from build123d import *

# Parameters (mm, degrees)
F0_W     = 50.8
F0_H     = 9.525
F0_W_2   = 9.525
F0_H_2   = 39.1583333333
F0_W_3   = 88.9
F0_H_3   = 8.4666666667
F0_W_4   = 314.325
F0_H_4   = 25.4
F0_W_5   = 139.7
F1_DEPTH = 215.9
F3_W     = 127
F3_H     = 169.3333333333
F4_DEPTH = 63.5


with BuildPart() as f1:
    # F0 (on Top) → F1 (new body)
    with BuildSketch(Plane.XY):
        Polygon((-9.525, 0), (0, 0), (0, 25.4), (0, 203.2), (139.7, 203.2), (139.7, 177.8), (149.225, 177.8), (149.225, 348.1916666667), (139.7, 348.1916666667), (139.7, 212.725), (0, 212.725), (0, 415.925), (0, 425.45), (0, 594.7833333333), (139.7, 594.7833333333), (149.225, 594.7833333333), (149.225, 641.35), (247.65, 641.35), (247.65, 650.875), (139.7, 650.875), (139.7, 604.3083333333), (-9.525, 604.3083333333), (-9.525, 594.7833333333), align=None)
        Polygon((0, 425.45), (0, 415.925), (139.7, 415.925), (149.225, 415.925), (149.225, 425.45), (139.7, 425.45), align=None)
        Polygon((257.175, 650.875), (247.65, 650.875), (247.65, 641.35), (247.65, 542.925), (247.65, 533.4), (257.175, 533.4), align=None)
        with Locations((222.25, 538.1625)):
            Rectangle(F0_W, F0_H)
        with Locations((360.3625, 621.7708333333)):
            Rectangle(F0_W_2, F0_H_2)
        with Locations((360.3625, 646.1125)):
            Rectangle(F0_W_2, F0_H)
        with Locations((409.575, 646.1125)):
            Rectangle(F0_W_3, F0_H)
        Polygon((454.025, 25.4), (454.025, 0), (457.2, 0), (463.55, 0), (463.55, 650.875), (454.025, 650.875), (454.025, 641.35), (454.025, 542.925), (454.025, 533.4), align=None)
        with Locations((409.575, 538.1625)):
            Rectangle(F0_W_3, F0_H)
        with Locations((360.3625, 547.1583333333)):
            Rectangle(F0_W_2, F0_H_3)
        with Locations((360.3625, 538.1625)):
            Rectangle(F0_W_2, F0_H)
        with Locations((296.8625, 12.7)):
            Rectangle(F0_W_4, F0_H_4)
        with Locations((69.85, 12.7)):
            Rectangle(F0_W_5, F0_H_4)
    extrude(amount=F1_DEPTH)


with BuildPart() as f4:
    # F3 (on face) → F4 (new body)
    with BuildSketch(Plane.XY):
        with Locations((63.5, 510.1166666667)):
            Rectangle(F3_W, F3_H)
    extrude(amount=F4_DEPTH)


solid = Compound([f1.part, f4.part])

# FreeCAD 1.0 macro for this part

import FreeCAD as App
import Part
import Sketcher
Q = App.Units.Quantity

doc = App.newDocument("Part")
body = doc.addObject("PartDesign::Body", "Body")

# Sketch on XY plane
sketch1 = body.newObject("Sketcher::SketchObject", "Sketch")
sketch1.AttachmentSupport = (doc.getObject("XY_Plane"), [""])
sketch1.MapMode = "FlatFace"
sketch1.addGeometry(Part.LineSegment(App.Vector(-9.525, 0, 0), App.Vector(463.55, 0, 0)), False)
sketch1.addGeometry(Part.LineSegment(App.Vector(463.55, 0, 0), App.Vector(463.55, 650.875, 0)), False)
sketch1.addGeometry(Part.LineSegment(App.Vector(463.55, 650.875, 0), App.Vector(355.6, 650.875, 0)), False)
sketch1.addGeometry(Part.LineSegment(App.Vector(355.6, 650.875, 0), App.Vector(355.6, 602.191667, 0)), False)
sketch1.addGeometry(Part.LineSegment(App.Vector(355.6, 602.191667, 0), App.Vector(365.125, 602.191667, 0)), False)
sketch1.addGeometry(Part.LineSegment(App.Vector(365.125, 602.191667, 0), App.Vector(365.125, 641.35, 0)), False)
sketch1.addGeometry(Part.LineSegment(App.Vector(365.125, 641.35, 0), App.Vector(454.025, 641.35, 0)), False)
sketch1.addGeometry(Part.LineSegment(App.Vector(454.025, 641.35, 0), App.Vector(454.025, 542.925, 0)), False)
sketch1.addGeometry(Part.LineSegment(App.Vector(454.025, 542.925, 0), App.Vector(365.125, 542.925, 0)), False)
sketch1.addGeometry(Part.LineSegment(App.Vector(365.125, 542.925, 0), App.Vector(365.125, 551.391667, 0)), False)
sketch1.addGeometry(Part.LineSegment(App.Vector(365.125, 551.391667, 0), App.Vector(355.6, 551.391667, 0)), False)
sketch1.addGeometry(Part.LineSegment(App.Vector(355.6, 551.391667, 0), App.Vector(355.6, 533.4, 0)), False)
sketch1.addGeometry(Part.LineSegment(App.Vector(355.6, 533.4, 0), App.Vector(454.025, 533.4, 0)), False)
sketch1.addGeometry(Part.LineSegment(App.Vector(454.025, 533.4, 0), App.Vector(454.025, 25.4, 0)), False)
sketch1.addGeometry(Part.LineSegment(App.Vector(454.025, 25.4, 0), App.Vector(0, 25.4, 0)), False)
sketch1.addGeometry(Part.LineSegment(App.Vector(0, 25.4, 0), App.Vector(0, 203.2, 0)), False)
sketch1.addGeometry(Part.LineSegment(App.Vector(0, 203.2, 0), App.Vector(139.7, 203.2, 0)), False)
sketch1.addGeometry(Part.LineSegment(App.Vector(139.7, 203.2, 0), App.Vector(139.7, 177.8, 0)), False)
sketch1.addGeometry(Part.LineSegment(App.Vector(139.7, 177.8, 0), App.Vector(149.225, 177.8, 0)), False)
sketch1.addGeometry(Part.LineSegment(App.Vector(149.225, 177.8, 0), App.Vector(149.225, 348.191667, 0)), False)
sketch1.addGeometry(Part.LineSegment(App.Vector(149.225, 348.191667, 0), App.Vector(139.7, 348.191667, 0)), False)
sketch1.addGeometry(Part.LineSegment(App.Vector(139.7, 348.191667, 0), App.Vector(139.7, 212.725, 0)), False)
sketch1.addGeometry(Part.LineSegment(App.Vector(139.7, 212.725, 0), App.Vector(0, 212.725, 0)), False)
sketch1.addGeometry(Part.LineSegment(App.Vector(0, 212.725, 0), App.Vector(0, 415.925, 0)), False)
sketch1.addGeometry(Part.LineSegment(App.Vector(0, 415.925, 0), App.Vector(149.225, 415.925, 0)), False)
sketch1.addGeometry(Part.LineSegment(App.Vector(149.225, 415.925, 0), App.Vector(149.225, 425.45, 0)), False)
sketch1.addGeometry(Part.LineSegment(App.Vector(149.225, 425.45, 0), App.Vector(0, 425.45, 0)), False)
sketch1.addGeometry(Part.LineSegment(App.Vector(0, 425.45, 0), App.Vector(0, 594.783333, 0)), False)
sketch1.addGeometry(Part.LineSegment(App.Vector(0, 594.783333, 0), App.Vector(149.225, 594.783333, 0)), False)
sketch1.addGeometry(Part.LineSegment(App.Vector(149.225, 594.783333, 0), App.Vector(149.225, 641.35, 0)), False)
sketch1.addGeometry(Part.LineSegment(App.Vector(149.225, 641.35, 0), App.Vector(247.65, 641.35, 0)), False)
sketch1.addGeometry(Part.LineSegment(App.Vector(247.65, 641.35, 0), App.Vector(247.65, 542.925, 0)), False)
sketch1.addGeometry(Part.LineSegment(App.Vector(247.65, 542.925, 0), App.Vector(196.85, 542.925, 0)), False)
sketch1.addGeometry(Part.LineSegment(App.Vector(196.85, 542.925, 0), App.Vector(196.85, 533.4, 0)), False)
sketch1.addGeometry(Part.LineSegment(App.Vector(196.85, 533.4, 0), App.Vector(257.175, 533.4, 0)), False)
sketch1.addGeometry(Part.LineSegment(App.Vector(257.175, 533.4, 0), App.Vector(257.175, 650.875, 0)), False)
sketch1.addGeometry(Part.LineSegment(App.Vector(257.175, 650.875, 0), App.Vector(139.7, 650.875, 0)), False)
sketch1.addGeometry(Part.LineSegment(App.Vector(139.7, 650.875, 0), App.Vector(139.7, 604.308333, 0)), False)
sketch1.addGeometry(Part.LineSegment(App.Vector(139.7, 604.308333, 0), App.Vector(-9.525, 604.308333, 0)), False)
sketch1.addGeometry(Part.LineSegment(App.Vector(-9.525, 604.308333, 0), App.Vector(-9.525, 0, 0)), False)
sketch1.addConstraint(Sketcher.Constraint("Coincident", 0, 2, 1, 1))
sketch1.addConstraint(Sketcher.Constraint("Coincident", 1, 2, 2, 1))
sketch1.addConstraint(Sketcher.Constraint("Coincident", 2, 2, 3, 1))
sketch1.addConstraint(Sketcher.Constraint("Coincident", 3, 2, 4, 1))
sketch1.addConstraint(Sketcher.Constraint("Coincident", 4, 2, 5, 1))
sketch1.addConstraint(Sketcher.Constraint("Coincident", 5, 2, 6, 1))
sketch1.addConstraint(Sketcher.Constraint("Coincident", 6, 2, 7, 1))
sketch1.addConstraint(Sketcher.Constraint("Coincident", 7, 2, 8, 1))
sketch1.addConstraint(Sketcher.Constraint("Coincident", 8, 2, 9, 1))
sketch1.addConstraint(Sketcher.Constraint("Coincident", 9, 2, 10, 1))
sketch1.addConstraint(Sketcher.Constraint("Coincident", 10, 2, 11, 1))
sketch1.addConstraint(Sketcher.Constraint("Coincident", 11, 2, 12, 1))
sketch1.addConstraint(Sketcher.Constraint("Coincident", 12, 2, 13, 1))
sketch1.addConstraint(Sketcher.Constraint("Coincident", 13, 2, 14, 1))
sketch1.addConstraint(Sketcher.Constraint("Coincident", 14, 2, 15, 1))
sketch1.addConstraint(Sketcher.Constraint("Coincident", 15, 2, 16, 1))
sketch1.addConstraint(Sketcher.Constraint("Coincident", 16, 2, 17, 1))
sketch1.addConstraint(Sketcher.Constraint("Coincident", 17, 2, 18, 1))
sketch1.addConstraint(Sketcher.Constraint("Coincident", 18, 2, 19, 1))
sketch1.addConstraint(Sketcher.Constraint("Coincident", 19, 2, 20, 1))
sketch1.addConstraint(Sketcher.Constraint("Coincident", 20, 2, 21, 1))
sketch1.addConstraint(Sketcher.Constraint("Coincident", 21, 2, 22, 1))
sketch1.addConstraint(Sketcher.Constraint("Coincident", 22, 2, 23, 1))
sketch1.addConstraint(Sketcher.Constraint("Coincident", 23, 2, 24, 1))
sketch1.addConstraint(Sketcher.Constraint("Coincident", 24, 2, 25, 1))
sketch1.addConstraint(Sketcher.Constraint("Coincident", 25, 2, 26, 1))
sketch1.addConstraint(Sketcher.Constraint("Coincident", 26, 2, 27, 1))
sketch1.addConstraint(Sketcher.Constraint("Coincident", 27, 2, 28, 1))
sketch1.addConstraint(Sketcher.Constraint("Coincident", 28, 2, 29, 1))
sketch1.addConstraint(Sketcher.Constraint("Coincident", 29, 2, 30, 1))
sketch1.addConstraint(Sketcher.Constraint("Coincident", 30, 2, 31, 1))
sketch1.addConstraint(Sketcher.Constraint("Coincident", 31, 2, 32, 1))
sketch1.addConstraint(Sketcher.Constraint("Coincident", 32, 2, 33, 1))
sketch1.addConstraint(Sketcher.Constraint("Coincident", 33, 2, 34, 1))
sketch1.addConstraint(Sketcher.Constraint("Coincident", 34, 2, 35, 1))
sketch1.addConstraint(Sketcher.Constraint("Coincident", 35, 2, 36, 1))
sketch1.addConstraint(Sketcher.Constraint("Coincident", 36, 2, 37, 1))
sketch1.addConstraint(Sketcher.Constraint("Coincident", 37, 2, 38, 1))
sketch1.addConstraint(Sketcher.Constraint("Coincident", 38, 2, 39, 1))
sketch1.addConstraint(Sketcher.Constraint("Coincident", 39, 2, 0, 1))
sketch1.addConstraint(Sketcher.Constraint("Horizontal", 0))
sketch1.addConstraint(Sketcher.Constraint("Vertical", 1))
sketch1.addConstraint(Sketcher.Constraint("Horizontal", 2))
sketch1.addConstraint(Sketcher.Constraint("Vertical", 3))
sketch1.addConstraint(Sketcher.Constraint("Horizontal", 4))
sketch1.addConstraint(Sketcher.Constraint("Vertical", 5))
sketch1.addConstraint(Sketcher.Constraint("Horizontal", 6))
sketch1.addConstraint(Sketcher.Constraint("Vertical", 7))
sketch1.addConstraint(Sketcher.Constraint("Horizontal", 8))
sketch1.addConstraint(Sketcher.Constraint("Vertical", 9))
sketch1.addConstraint(Sketcher.Constraint("Horizontal", 10))
sketch1.addConstraint(Sketcher.Constraint("Vertical", 11))
sketch1.addConstraint(Sketcher.Constraint("Horizontal", 12))
sketch1.addConstraint(Sketcher.Constraint("Vertical", 13))
sketch1.addConstraint(Sketcher.Constraint("Horizontal", 14))
sketch1.addConstraint(Sketcher.Constraint("Vertical", 15))
sketch1.addConstraint(Sketcher.Constraint("Horizontal", 16))
sketch1.addConstraint(Sketcher.Constraint("Vertical", 17))
sketch1.addConstraint(Sketcher.Constraint("Horizontal", 18))
sketch1.addConstraint(Sketcher.Constraint("Vertical", 19))
sketch1.addConstraint(Sketcher.Constraint("Horizontal", 20))
sketch1.addConstraint(Sketcher.Constraint("Vertical", 21))
sketch1.addConstraint(Sketcher.Constraint("Horizontal", 22))
sketch1.addConstraint(Sketcher.Constraint("Vertical", 23))
sketch1.addConstraint(Sketcher.Constraint("Horizontal", 24))
sketch1.addConstraint(Sketcher.Constraint("Vertical", 25))
sketch1.addConstraint(Sketcher.Constraint("Horizontal", 26))
sketch1.addConstraint(Sketcher.Constraint("Vertical", 27))
sketch1.addConstraint(Sketcher.Constraint("Horizontal", 28))
sketch1.addConstraint(Sketcher.Constraint("Vertical", 29))
sketch1.addConstraint(Sketcher.Constraint("Horizontal", 30))
sketch1.addConstraint(Sketcher.Constraint("Vertical", 31))
sketch1.addConstraint(Sketcher.Constraint("Horizontal", 32))
sketch1.addConstraint(Sketcher.Constraint("Vertical", 33))
sketch1.addConstraint(Sketcher.Constraint("Horizontal", 34))
sketch1.addConstraint(Sketcher.Constraint("Vertical", 35))
sketch1.addConstraint(Sketcher.Constraint("Horizontal", 36))
sketch1.addConstraint(Sketcher.Constraint("Vertical", 37))
sketch1.addConstraint(Sketcher.Constraint("Horizontal", 38))
sketch1.addConstraint(Sketcher.Constraint("Vertical", 39))
sketch1.addConstraint(Sketcher.Constraint("PointOnObject", 0, 2, -1))
sketch1.addConstraint(Sketcher.Constraint("PointOnObject", 14, 2, -2))
sketch1.addConstraint(Sketcher.Constraint("PointOnObject", 22, 2, -2))
sketch1.addConstraint(Sketcher.Constraint("PointOnObject", 26, 2, -2))
sketch1.addConstraint(Sketcher.Constraint("Horizontal", 6, 2, 29, 2))
sketch1.addConstraint(Sketcher.Constraint("Horizontal", 8, 2, 31, 2))
sketch1.addConstraint(Sketcher.Constraint("Horizontal", 12, 2, 33, 2))
sketch1.addConstraint(Sketcher.Constraint("Horizontal", 2, 2, 35, 2))
sketch1.addConstraint(Sketcher.Constraint("Vertical", 5, 2, 8, 2))
sketch1.addConstraint(Sketcher.Constraint("Vertical", 3, 2, 10, 2))
sketch1.addConstraint(Sketcher.Constraint("Vertical", 7, 2, 12, 2))
sketch1.addConstraint(Sketcher.Constraint("Vertical", 17, 2, 20, 2))
sketch1.addConstraint(Sketcher.Constraint("Vertical", 19, 2, 24, 2))
sketch1.addConstraint(Sketcher.Constraint("Vertical", 25, 2, 28, 2))
sketch1.addConstraint(Sketcher.Constraint("Vertical", 21, 2, 36, 2))
sketch1.addConstraint(Sketcher.Constraint("Equal", 10, 18))
sketch1.addConstraint(Sketcher.Constraint("Equal", 12, 30))
sketch1.addConstraint(Sketcher.Constraint("Equal", 28, 38))
sketch1.addConstraint(Sketcher.Constraint("Equal", 30, 7))
sketch1.addConstraint(Sketcher.Constraint("Equal", 20, 25))
sketch1.addConstraint(Sketcher.Constraint("Equal", 25, 33))
sketch1.addConstraint(Sketcher.Constraint("Equal", 36, 35))
sketch1.addConstraint(Sketcher.Constraint("Equal", 29, 37))
sketch1.addConstraint(Sketcher.Constraint("DistanceX", 32, 2, 32, 1, Q("2 in")))
sketch1.addConstraint(Sketcher.Constraint("DistanceY", 13, 2, 13, 1, Q("20 in")))
sketch1.addConstraint(Sketcher.Constraint("DistanceY", 15, 1, 15, 2, Q("7 in")))
sketch1.addConstraint(Sketcher.Constraint("DistanceY", 17, 2, 17, 1, Q("1 in")))
sketch1.addConstraint(Sketcher.Constraint("DistanceY", 23, 1, 23, 2, Q("8 in")))
sketch1.addConstraint(Sketcher.Constraint("DistanceX", 6, 1, 6, 2, Q("3.5 in")))
sketch1.addConstraint(Sketcher.Constraint("DistanceX", 16, 1, 16, 2, Q("5.5 in")))
sketch1.addConstraint(Sketcher.Constraint("DistanceX", -1, 1, 2, 2, Q("14 in")))
sketch1.addConstraint(Sketcher.Constraint("DistanceY", -1, 1, 11, 2, Q("21 in")))
sketch1.addConstraint(Sketcher.Constraint("DistanceY", 9, 2, 4, 2, Q("2 in")))
sketch1.addConstraint(Sketcher.Constraint("DistanceX", 2, 2, 2, 1, Q("4.25 in")))
sketch1.addConstraint(Sketcher.Constraint("DistanceX", 0, 1, 0, 2, Q("18.625 in")))
sketch1.addConstraint(Sketcher.Constraint("DistanceX", 34, 1, 34, 2, Q("2.375 in")))
sketch1.addConstraint(Sketcher.Constraint("DistanceY", -1, 1, 25, 2, Q("16.75 in")))
sketch1.addConstraint(Sketcher.Constraint("DistanceY", 3, 2, 3, 1, Q("48.683333 mm")))
sketch1.addConstraint(Sketcher.Constraint("DistanceY", 19, 1, 19, 2, Q("170.391667 mm")))
sketch1.addConstraint(Sketcher.Constraint("DistanceY", 27, 1, 27, 2, Q("169.333333 mm")))
pad1 = body.newObject("PartDesign::Pad", "Pad")
pad1.Profile = sketch1
pad1.Length = Q("8.5 in")
body2 = doc.addObject("PartDesign::Body", "Body001")

# Sketch on XY plane
sketch2 = body2.newObject("Sketcher::SketchObject", "Sketch001")
sketch2.AttachmentSupport = (doc.getObject("XY_Plane001"), [""])
sketch2.MapMode = "FlatFace"
sketch2.addGeometry(Part.LineSegment(App.Vector(0, 594.783333, 0), App.Vector(0, 425.45, 0)), False)
sketch2.addGeometry(Part.LineSegment(App.Vector(0, 425.45, 0), App.Vector(127, 425.45, 0)), False)
sketch2.addGeometry(Part.LineSegment(App.Vector(127, 425.45, 0), App.Vector(127, 594.783333, 0)), False)
sketch2.addGeometry(Part.LineSegment(App.Vector(127, 594.783333, 0), App.Vector(0, 594.783333, 0)), False)
sketch2.addConstraint(Sketcher.Constraint("Coincident", 0, 2, 1, 1))
sketch2.addConstraint(Sketcher.Constraint("Coincident", 1, 2, 2, 1))
sketch2.addConstraint(Sketcher.Constraint("Coincident", 2, 2, 3, 1))
sketch2.addConstraint(Sketcher.Constraint("Coincident", 3, 2, 0, 1))
sketch2.addConstraint(Sketcher.Constraint("Vertical", 0))
sketch2.addConstraint(Sketcher.Constraint("Horizontal", 1))
sketch2.addConstraint(Sketcher.Constraint("Vertical", 2))
sketch2.addConstraint(Sketcher.Constraint("Horizontal", 3))
sketch2.addConstraint(Sketcher.Constraint("PointOnObject", 0, 2, -2))
sketch2.addConstraint(Sketcher.Constraint("DistanceX", 1, 1, 1, 2, Q("5 in")))
sketch2.addConstraint(Sketcher.Constraint("DistanceY", -1, 1, 0, 2, Q("16.75 in")))
sketch2.addConstraint(Sketcher.Constraint("DistanceY", 0, 2, 0, 1, Q("169.333333 mm")))
pad2 = body2.newObject("PartDesign::Pad", "Pad001")
pad2.Profile = sketch2
pad2.Length = Q("2.5 in")

doc.recompute()
